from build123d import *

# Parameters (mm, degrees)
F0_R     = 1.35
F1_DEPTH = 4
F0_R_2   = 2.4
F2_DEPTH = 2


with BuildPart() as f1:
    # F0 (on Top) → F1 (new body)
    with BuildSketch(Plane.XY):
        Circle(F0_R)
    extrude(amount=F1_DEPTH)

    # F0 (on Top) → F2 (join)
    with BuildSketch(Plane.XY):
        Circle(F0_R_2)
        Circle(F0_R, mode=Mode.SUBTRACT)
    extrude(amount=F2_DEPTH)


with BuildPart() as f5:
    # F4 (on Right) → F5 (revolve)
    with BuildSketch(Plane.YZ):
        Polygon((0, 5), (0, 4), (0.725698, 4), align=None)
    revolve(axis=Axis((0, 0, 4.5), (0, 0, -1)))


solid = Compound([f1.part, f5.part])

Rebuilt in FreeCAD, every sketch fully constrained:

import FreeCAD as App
import Part
import Sketcher
from FreeCAD import Vector
Q = App.Units.Quantity

doc = App.newDocument("Part")
body = doc.addObject("PartDesign::Body", "Body")

sketch1 = doc.addObject("Sketcher::SketchObject", "Sketch")
body.addObject(sketch1)
sketch1.AttachmentSupport = (doc.XY_Plane, [""])
sketch1.MapMode = "FlatFace"
sketch1.addGeometry(Part.Circle(Vector(0, 0, 0), Vector(0, 0, 1), 1.35), False)
sketch1.addConstraint(Sketcher.Constraint("Coincident", 0, 3, -1, 1))
sketch1.addConstraint(Sketcher.Constraint("Diameter", 0, Q("2.7 mm")))
pad1 = doc.addObject("PartDesign::Pad", "Pad")
body.addObject(pad1)
pad1.Profile = sketch1
pad1.Length = 4

sketch2 = doc.addObject("Sketcher::SketchObject", "Sketch001")
body.addObject(sketch2)
sketch2.AttachmentSupport = (doc.XY_Plane, [""])
sketch2.MapMode = "FlatFace"
sketch2.addGeometry(Part.Circle(Vector(0, 0, 0), Vector(0, 0, 1), 2.4), False)
sketch2.addGeometry(Part.Circle(Vector(0, 0, 0), Vector(0, 0, 1), 1.35), False)
sketch2.addConstraint(Sketcher.Constraint("Coincident", 0, 3, -1, 1))
sketch2.addConstraint(Sketcher.Constraint("Coincident", 1, 3, -1, 1))
sketch2.addConstraint(Sketcher.Constraint("Diameter", 0, Q("4.8 mm")))
sketch2.addConstraint(Sketcher.Constraint("Diameter", 1, Q("2.7 mm")))
pad2 = doc.addObject("PartDesign::Pad", "Pad001")
body.addObject(pad2)
pad2.Profile = sketch2
pad2.Length = 2
body2 = doc.addObject("PartDesign::Body", "Body001")

sketch3 = doc.addObject("Sketcher::SketchObject", "Sketch002")
body2.addObject(sketch3)
sketch3.AttachmentSupport = (doc.getObject("YZ_Plane001"), [""])
sketch3.MapMode = "FlatFace"
sketch3.addGeometry(Part.LineSegment(Vector(0, 5, 0), Vector(0, 4, 0)), False)
sketch3.addGeometry(Part.LineSegment(Vector(0, 4, 0), Vector(0.725698, 4, 0)), False)
sketch3.addGeometry(Part.LineSegment(Vector(0.725698, 4, 0), Vector(0, 5, 0)), False)
sketch3.addConstraint(Sketcher.Constraint("Coincident", 0, 2, 1, 1))
sketch3.addConstraint(Sketcher.Constraint("Coincident", 1, 2, 2, 1))
sketch3.addConstraint(Sketcher.Constraint("Coincident", 2, 2, 0, 1))
sketch3.addConstraint(Sketcher.Constraint("Vertical", 0))
sketch3.addConstraint(Sketcher.Constraint("Horizontal", 1))
sketch3.addConstraint(Sketcher.Constraint("PointOnObject", 0, 2, -2))
sketch3.addConstraint(Sketcher.Constraint("DistanceY", 0, 2, 0, 1, Q("1 mm")))
sketch3.addConstraint(Sketcher.Constraint("DistanceY", -1, 1, 0, 2, Q("4 mm")))
sketch3.addConstraint(Sketcher.Constraint("Distance", 2, Q("1.235572 mm")))
revolution = doc.addObject("PartDesign::Revolution", "Revolution")
body2.addObject(revolution)
revolution.Profile = sketch3
revolution.ReferenceAxis = (sketch3, ["V_Axis"])
revolution.Angle = 360

doc.recompute()
